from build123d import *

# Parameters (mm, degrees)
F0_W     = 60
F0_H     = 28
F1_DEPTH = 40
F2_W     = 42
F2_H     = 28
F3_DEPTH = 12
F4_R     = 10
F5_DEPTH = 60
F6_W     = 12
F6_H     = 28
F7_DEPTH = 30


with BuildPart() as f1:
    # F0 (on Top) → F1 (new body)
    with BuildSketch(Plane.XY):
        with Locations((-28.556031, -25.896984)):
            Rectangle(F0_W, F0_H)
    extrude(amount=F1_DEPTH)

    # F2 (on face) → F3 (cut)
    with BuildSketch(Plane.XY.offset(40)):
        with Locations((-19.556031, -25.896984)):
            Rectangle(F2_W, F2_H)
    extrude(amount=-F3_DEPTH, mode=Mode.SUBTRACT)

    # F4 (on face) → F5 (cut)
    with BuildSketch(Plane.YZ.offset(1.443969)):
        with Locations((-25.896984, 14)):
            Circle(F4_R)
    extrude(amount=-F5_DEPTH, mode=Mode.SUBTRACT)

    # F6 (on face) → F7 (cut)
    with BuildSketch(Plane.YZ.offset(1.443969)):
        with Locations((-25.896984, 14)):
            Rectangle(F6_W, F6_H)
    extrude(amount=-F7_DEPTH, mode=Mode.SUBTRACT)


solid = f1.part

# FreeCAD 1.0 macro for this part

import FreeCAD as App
import Part
import Sketcher
Q = App.Units.Quantity

doc = App.newDocument("Part")
params = doc.addObject("Spreadsheet::Sheet", "Params")
for row, (alias, value) in enumerate([
    ("sketch1_width", "60 mm"),
    ("sketch1_height", "28 mm"),
    ("pad1_length", "40 mm"),
    ("sketch2_width", "42 mm"),
    ("sketch2_height", "28 mm"),
    ("pocket1_length", "12 mm"),
    ("sketch3_diameter", "20 mm"),
    ("pocket2_length", "60 mm"),
    ("sketch4_width", "12 mm"),
    ("sketch4_height", "28 mm"),
    ("pocket3_length", "30 mm"),
], start=1):
    params.set(f"A{row}", alias)
    params.set(f"B{row}", "=" + value)
    params.setAlias(f"B{row}", alias)

body = doc.addObject("PartDesign::Body", "Body")

# Sketch on XY plane
sketch1 = body.newObject("Sketcher::SketchObject", "Sketch")
sketch1.AttachmentSupport = (doc.getObject("XY_Plane"), [""])
sketch1.MapMode = "FlatFace"
sketch1.addGeometry(Part.LineSegment(App.Vector(-59, -12, 0), App.Vector(-59, -40, 0)), False)
sketch1.addGeometry(Part.LineSegment(App.Vector(-59, -40, 0), App.Vector(1, -40, 0)), False)
sketch1.addGeometry(Part.LineSegment(App.Vector(1, -40, 0), App.Vector(1, -12, 0)), False)
sketch1.addGeometry(Part.LineSegment(App.Vector(1, -12, 0), App.Vector(-59, -12, 0)), False)
sketch1.addConstraint(Sketcher.Constraint("Coincident", 0, 2, 1, 1))
sketch1.addConstraint(Sketcher.Constraint("Coincident", 1, 2, 2, 1))
sketch1.addConstraint(Sketcher.Constraint("Coincident", 2, 2, 3, 1))
sketch1.addConstraint(Sketcher.Constraint("Coincident", 3, 2, 0, 1))
sketch1.addConstraint(Sketcher.Constraint("Vertical", 0))
sketch1.addConstraint(Sketcher.Constraint("Horizontal", 1))
sketch1.addConstraint(Sketcher.Constraint("Vertical", 2))
sketch1.addConstraint(Sketcher.Constraint("Horizontal", 3))
sketch1.addConstraint(Sketcher.Constraint("DistanceX", 1, 1, 1, 2, Q("60 mm")))
sketch1.addConstraint(Sketcher.Constraint("DistanceY", 0, 2, 0, 1, Q("28 mm")))
sketch1.addConstraint(Sketcher.Constraint("DistanceX", 0, 2, -1, 1, Q("58.556031 mm")))
sketch1.addConstraint(Sketcher.Constraint("DistanceY", 0, 2, -1, 1, Q("39.896984 mm")))
sketch1.setExpression("Constraints[8]", "Params.sketch1_width")
sketch1.setExpression("Constraints[9]", "Params.sketch1_height")
pad1 = body.newObject("PartDesign::Pad", "Pad")
pad1.Profile = sketch1
pad1.setExpression("Length", "Params.pad1_length")

# Sketch on XY plane
sketch2 = body.newObject("Sketcher::SketchObject", "Sketch001")
sketch2.AttachmentSupport = (doc.getObject("XY_Plane"), [""])
sketch2.MapMode = "FlatFace"
sketch2.AttachmentOffset = App.Placement(App.Vector(0, 0, 40), App.Rotation())
sketch2.addGeometry(Part.LineSegment(App.Vector(-41, -12, 0), App.Vector(-41, -40, 0)), False)
sketch2.addGeometry(Part.LineSegment(App.Vector(-41, -40, 0), App.Vector(1, -40, 0)), False)
sketch2.addGeometry(Part.LineSegment(App.Vector(1, -40, 0), App.Vector(1, -12, 0)), False)
sketch2.addGeometry(Part.LineSegment(App.Vector(1, -12, 0), App.Vector(-41, -12, 0)), False)
sketch2.addConstraint(Sketcher.Constraint("Coincident", 0, 2, 1, 1))
sketch2.addConstraint(Sketcher.Constraint("Coincident", 1, 2, 2, 1))
sketch2.addConstraint(Sketcher.Constraint("Coincident", 2, 2, 3, 1))
sketch2.addConstraint(Sketcher.Constraint("Coincident", 3, 2, 0, 1))
sketch2.addConstraint(Sketcher.Constraint("Vertical", 0))
sketch2.addConstraint(Sketcher.Constraint("Horizontal", 1))
sketch2.addConstraint(Sketcher.Constraint("Vertical", 2))
sketch2.addConstraint(Sketcher.Constraint("Horizontal", 3))
sketch2.addConstraint(Sketcher.Constraint("DistanceX", 1, 1, 1, 2, Q("42 mm")))
sketch2.addConstraint(Sketcher.Constraint("DistanceY", 0, 2, 0, 1, Q("28 mm")))
sketch2.addConstraint(Sketcher.Constraint("DistanceX", 0, 2, -1, 1, Q("40.556031 mm")))
sketch2.addConstraint(Sketcher.Constraint("DistanceY", 0, 2, -1, 1, Q("39.896984 mm")))
sketch2.setExpression("Constraints[8]", "Params.sketch2_width")
sketch2.setExpression("Constraints[9]", "Params.sketch2_height")
pocket1 = body.newObject("PartDesign::Pocket", "Pocket")
pocket1.Profile = sketch2
pocket1.setExpression("Length", "Params.pocket1_length")

# Sketch on YZ plane
sketch3 = body.newObject("Sketcher::SketchObject", "Sketch002")
sketch3.AttachmentSupport = (doc.getObject("YZ_Plane"), [""])
sketch3.MapMode = "FlatFace"
sketch3.AttachmentOffset = App.Placement(App.Vector(0, 0, 1.443969), App.Rotation())
sketch3.addGeometry(Part.Circle(App.Vector(-26, 14, 0), App.Vector(0, 0, 1), 10), False)
sketch3.addConstraint(Sketcher.Constraint("Diameter", 0, Q("20 mm")))
sketch3.addConstraint(Sketcher.Constraint("DistanceY", -1, 1, 0, 3, Q("14 mm")))
sketch3.addConstraint(Sketcher.Constraint("DistanceX", 0, 3, -1, 1, Q("25.896984 mm")))
sketch3.setExpression("Constraints[0]", "Params.sketch3_diameter")
pocket2 = body.newObject("PartDesign::Pocket", "Pocket001")
pocket2.Profile = sketch3
pocket2.setExpression("Length", "Params.pocket2_length")

# Sketch on YZ plane
sketch4 = body.newObject("Sketcher::SketchObject", "Sketch003")
sketch4.AttachmentSupport = (doc.getObject("YZ_Plane"), [""])
sketch4.MapMode = "FlatFace"
sketch4.AttachmentOffset = App.Placement(App.Vector(0, 0, 1.443969), App.Rotation())
sketch4.addGeometry(Part.LineSegment(App.Vector(-32, 28, 0), App.Vector(-32, 0, 0)), False)
sketch4.addGeometry(Part.LineSegment(App.Vector(-32, 0, 0), App.Vector(-20, 0, 0)), False)
sketch4.addGeometry(Part.LineSegment(App.Vector(-20, 0, 0), App.Vector(-20, 28, 0)), False)
sketch4.addGeometry(Part.LineSegment(App.Vector(-20, 28, 0), App.Vector(-32, 28, 0)), False)
sketch4.addConstraint(Sketcher.Constraint("Coincident", 0, 2, 1, 1))
sketch4.addConstraint(Sketcher.Constraint("Coincident", 1, 2, 2, 1))
sketch4.addConstraint(Sketcher.Constraint("Coincident", 2, 2, 3, 1))
sketch4.addConstraint(Sketcher.Constraint("Coincident", 3, 2, 0, 1))
sketch4.addConstraint(Sketcher.Constraint("Vertical", 0))
sketch4.addConstraint(Sketcher.Constraint("Horizontal", 1))
sketch4.addConstraint(Sketcher.Constraint("Vertical", 2))
sketch4.addConstraint(Sketcher.Constraint("Horizontal", 3))
sketch4.addConstraint(Sketcher.Constraint("PointOnObject", 0, 2, -1))
sketch4.addConstraint(Sketcher.Constraint("DistanceX", 1, 1, 1, 2, Q("12 mm")))
sketch4.addConstraint(Sketcher.Constraint("DistanceY", 0, 2, 0, 1, Q("28 mm")))
sketch4.addConstraint(Sketcher.Constraint("DistanceX", 0, 2, -1, 1, Q("31.896984 mm")))
sketch4.setExpression("Constraints[9]", "Params.sketch4_width")
sketch4.setExpression("Constraints[10]", "Params.sketch4_height")
pocket3 = body.newObject("PartDesign::Pocket", "Pocket002")
pocket3.Profile = sketch4
pocket3.setExpression("Length", "Params.pocket3_length")

doc.recompute()
